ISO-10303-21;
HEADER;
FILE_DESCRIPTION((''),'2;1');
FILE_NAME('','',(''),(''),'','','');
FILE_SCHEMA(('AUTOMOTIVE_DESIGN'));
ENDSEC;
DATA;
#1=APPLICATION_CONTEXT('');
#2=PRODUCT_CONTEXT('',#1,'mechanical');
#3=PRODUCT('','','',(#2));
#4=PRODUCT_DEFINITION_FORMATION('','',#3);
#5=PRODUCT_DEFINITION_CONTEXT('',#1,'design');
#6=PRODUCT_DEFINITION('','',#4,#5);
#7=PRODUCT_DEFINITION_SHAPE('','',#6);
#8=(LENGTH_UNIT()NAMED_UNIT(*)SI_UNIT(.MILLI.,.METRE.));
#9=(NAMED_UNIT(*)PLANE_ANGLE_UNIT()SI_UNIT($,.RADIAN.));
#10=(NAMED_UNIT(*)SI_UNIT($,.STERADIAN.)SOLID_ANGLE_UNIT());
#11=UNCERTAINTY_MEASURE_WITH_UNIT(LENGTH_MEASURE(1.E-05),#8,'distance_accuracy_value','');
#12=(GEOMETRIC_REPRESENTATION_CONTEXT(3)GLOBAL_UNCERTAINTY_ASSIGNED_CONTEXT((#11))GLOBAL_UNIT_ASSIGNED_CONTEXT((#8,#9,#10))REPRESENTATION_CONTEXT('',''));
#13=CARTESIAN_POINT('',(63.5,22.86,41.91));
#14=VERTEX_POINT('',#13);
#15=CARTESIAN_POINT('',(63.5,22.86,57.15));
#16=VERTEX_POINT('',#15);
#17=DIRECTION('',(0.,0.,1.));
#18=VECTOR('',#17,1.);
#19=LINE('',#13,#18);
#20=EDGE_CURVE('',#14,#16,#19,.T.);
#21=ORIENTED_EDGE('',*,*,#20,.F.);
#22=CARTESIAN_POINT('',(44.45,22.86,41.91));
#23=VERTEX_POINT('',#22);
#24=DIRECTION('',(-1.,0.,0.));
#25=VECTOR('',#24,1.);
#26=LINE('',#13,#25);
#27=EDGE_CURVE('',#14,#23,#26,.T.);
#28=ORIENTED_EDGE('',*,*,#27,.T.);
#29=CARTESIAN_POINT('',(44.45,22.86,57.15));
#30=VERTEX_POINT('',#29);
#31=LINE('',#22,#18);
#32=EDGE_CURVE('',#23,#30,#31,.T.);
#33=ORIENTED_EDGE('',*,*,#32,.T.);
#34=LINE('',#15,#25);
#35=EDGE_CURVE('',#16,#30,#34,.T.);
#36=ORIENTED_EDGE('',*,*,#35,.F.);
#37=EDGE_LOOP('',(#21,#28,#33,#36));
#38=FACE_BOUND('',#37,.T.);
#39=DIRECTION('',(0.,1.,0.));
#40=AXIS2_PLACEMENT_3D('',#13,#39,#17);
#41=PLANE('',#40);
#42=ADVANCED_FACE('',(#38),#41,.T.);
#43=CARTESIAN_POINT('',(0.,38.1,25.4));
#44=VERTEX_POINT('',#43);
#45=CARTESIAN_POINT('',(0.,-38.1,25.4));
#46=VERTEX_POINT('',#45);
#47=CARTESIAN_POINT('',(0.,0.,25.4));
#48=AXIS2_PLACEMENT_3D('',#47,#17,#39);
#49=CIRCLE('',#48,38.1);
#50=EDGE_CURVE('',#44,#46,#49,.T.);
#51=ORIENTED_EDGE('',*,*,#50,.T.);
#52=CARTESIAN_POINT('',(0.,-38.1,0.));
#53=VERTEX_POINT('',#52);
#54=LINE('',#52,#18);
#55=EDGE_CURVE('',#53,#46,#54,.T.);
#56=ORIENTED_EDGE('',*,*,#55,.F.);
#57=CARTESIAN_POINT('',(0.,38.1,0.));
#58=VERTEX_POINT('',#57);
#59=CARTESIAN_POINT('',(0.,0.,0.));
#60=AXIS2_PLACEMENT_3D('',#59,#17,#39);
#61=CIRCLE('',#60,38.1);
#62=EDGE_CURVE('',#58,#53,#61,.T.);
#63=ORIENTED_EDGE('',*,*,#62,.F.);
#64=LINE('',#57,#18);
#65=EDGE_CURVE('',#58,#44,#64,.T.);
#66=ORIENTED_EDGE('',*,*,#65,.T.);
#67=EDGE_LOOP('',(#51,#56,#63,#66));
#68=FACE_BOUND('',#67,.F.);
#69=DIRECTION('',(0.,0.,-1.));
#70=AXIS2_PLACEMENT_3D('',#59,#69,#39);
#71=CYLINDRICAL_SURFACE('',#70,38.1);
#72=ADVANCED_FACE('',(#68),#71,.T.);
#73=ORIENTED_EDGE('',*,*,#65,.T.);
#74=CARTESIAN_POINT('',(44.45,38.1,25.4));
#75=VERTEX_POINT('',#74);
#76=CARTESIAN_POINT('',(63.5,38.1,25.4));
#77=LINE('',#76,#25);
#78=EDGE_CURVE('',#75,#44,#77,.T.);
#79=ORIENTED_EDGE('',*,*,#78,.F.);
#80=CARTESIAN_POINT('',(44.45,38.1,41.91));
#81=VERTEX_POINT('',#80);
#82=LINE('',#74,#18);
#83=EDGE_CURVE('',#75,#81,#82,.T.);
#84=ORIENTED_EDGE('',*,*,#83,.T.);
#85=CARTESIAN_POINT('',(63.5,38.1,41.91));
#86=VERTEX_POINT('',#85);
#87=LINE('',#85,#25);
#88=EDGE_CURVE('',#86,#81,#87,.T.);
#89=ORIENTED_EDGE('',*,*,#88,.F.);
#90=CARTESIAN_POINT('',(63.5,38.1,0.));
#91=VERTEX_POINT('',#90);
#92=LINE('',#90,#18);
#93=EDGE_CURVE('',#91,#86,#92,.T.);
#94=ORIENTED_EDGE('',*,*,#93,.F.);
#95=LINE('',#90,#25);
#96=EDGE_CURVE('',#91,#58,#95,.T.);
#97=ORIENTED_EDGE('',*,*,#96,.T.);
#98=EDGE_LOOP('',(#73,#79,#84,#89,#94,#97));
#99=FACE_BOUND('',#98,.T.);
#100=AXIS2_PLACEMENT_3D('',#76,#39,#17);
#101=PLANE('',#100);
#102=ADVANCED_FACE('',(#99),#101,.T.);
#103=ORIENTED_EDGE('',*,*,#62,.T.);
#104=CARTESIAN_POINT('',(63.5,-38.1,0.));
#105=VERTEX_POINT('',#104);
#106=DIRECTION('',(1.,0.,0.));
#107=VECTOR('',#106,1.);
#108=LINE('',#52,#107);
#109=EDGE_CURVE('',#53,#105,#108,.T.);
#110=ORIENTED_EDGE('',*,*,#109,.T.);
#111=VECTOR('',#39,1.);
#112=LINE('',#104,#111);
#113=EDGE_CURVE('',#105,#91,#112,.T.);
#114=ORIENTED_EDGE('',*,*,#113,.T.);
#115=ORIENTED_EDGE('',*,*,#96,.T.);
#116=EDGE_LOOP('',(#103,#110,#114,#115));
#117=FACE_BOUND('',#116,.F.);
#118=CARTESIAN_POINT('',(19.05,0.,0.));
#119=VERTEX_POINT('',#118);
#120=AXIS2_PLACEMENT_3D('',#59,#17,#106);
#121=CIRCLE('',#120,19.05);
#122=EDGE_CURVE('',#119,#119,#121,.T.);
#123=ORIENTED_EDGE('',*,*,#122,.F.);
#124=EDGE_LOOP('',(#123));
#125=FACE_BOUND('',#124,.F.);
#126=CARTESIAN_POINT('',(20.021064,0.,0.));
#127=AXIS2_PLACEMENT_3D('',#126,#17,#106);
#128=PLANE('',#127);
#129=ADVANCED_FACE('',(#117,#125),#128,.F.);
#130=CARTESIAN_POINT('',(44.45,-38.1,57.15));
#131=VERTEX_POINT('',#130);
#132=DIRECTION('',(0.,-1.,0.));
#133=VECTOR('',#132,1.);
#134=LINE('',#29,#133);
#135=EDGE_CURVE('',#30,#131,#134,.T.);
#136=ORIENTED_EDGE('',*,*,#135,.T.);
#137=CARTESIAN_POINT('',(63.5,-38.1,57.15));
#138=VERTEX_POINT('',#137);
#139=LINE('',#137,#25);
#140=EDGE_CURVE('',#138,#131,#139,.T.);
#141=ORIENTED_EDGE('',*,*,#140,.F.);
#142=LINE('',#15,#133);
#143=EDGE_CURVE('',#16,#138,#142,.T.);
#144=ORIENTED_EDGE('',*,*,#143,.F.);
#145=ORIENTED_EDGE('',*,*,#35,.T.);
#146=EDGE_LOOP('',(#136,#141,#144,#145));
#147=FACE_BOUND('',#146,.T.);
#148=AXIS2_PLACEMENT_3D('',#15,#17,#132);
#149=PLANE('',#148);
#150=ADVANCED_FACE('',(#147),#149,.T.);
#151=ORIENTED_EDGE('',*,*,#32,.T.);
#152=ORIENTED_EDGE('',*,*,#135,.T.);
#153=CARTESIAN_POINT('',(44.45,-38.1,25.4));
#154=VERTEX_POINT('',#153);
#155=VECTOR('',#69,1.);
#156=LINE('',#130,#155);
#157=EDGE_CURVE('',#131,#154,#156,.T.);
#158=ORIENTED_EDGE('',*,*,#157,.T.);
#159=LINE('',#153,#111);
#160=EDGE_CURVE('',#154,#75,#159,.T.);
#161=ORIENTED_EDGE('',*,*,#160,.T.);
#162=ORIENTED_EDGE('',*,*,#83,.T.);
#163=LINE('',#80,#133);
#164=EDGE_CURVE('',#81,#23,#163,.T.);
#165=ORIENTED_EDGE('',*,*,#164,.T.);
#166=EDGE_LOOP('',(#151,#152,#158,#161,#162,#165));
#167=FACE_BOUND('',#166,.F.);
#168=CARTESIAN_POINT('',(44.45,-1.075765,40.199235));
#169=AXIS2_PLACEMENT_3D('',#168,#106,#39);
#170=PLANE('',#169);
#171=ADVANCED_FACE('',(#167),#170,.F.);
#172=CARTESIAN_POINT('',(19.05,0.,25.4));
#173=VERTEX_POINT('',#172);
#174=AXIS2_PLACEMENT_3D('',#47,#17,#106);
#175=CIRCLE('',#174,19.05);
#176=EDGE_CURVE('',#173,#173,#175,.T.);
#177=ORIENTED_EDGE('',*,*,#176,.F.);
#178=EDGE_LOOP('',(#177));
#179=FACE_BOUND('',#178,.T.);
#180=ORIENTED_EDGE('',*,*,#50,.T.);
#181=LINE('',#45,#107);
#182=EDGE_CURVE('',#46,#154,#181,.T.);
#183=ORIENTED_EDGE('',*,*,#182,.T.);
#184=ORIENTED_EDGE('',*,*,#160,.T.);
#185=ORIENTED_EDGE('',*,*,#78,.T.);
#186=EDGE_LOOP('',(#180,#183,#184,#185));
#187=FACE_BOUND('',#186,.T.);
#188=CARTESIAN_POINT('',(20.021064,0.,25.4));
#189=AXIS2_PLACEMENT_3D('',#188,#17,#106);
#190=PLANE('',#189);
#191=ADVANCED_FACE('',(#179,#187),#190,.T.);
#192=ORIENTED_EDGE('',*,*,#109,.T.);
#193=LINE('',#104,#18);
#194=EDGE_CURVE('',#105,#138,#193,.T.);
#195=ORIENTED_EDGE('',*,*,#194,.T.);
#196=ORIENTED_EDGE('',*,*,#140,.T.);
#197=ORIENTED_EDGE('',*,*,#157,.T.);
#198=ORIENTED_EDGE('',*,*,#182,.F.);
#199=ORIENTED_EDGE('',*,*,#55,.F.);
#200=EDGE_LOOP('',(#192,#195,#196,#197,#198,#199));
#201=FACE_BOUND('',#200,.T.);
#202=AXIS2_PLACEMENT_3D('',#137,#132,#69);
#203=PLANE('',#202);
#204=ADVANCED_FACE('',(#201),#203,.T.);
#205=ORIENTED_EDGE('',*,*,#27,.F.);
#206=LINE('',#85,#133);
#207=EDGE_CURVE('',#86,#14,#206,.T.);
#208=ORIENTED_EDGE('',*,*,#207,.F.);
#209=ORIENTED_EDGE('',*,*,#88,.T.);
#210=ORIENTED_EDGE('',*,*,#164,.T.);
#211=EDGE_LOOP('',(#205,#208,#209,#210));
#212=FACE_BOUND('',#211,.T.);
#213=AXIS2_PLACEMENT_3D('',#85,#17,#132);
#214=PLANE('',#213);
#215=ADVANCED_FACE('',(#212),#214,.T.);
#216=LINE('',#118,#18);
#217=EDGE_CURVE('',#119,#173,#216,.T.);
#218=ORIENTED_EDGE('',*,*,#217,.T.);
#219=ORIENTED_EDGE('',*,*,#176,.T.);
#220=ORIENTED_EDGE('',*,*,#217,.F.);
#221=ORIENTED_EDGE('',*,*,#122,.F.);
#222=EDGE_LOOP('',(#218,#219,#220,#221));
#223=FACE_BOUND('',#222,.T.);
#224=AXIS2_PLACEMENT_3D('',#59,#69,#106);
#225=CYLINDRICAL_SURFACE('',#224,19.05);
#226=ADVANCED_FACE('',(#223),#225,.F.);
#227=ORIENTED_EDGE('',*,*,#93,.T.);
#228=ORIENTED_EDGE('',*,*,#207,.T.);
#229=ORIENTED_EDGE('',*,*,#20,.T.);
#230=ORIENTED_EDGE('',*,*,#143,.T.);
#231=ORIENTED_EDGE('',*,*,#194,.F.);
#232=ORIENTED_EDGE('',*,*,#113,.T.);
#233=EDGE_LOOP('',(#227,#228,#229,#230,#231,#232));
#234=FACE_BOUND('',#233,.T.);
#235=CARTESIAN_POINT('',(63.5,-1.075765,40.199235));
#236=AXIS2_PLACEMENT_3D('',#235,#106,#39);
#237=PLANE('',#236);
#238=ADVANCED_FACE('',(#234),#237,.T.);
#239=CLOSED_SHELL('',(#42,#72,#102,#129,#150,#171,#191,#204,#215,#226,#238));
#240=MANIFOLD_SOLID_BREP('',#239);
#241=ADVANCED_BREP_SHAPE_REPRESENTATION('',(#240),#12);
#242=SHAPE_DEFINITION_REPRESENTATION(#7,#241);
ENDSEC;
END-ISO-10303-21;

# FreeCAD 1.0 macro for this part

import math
import FreeCAD as App
import Part
import Sketcher
from FreeCAD import Vector
Q = App.Units.Quantity


def add_polygon(sketch, points):
    """Adds a closed chain of lines whose ends are joined by coincident constraints."""
    first, n = sketch.GeometryCount, len(points)
    for a, b in zip(points, points[1:] + points[:1]):
        sketch.addGeometry(Part.LineSegment(App.Vector(*a, 0), App.Vector(*b, 0)), False)
    for i in range(n):
        sketch.addConstraint(Sketcher.Constraint("Coincident", first + i, 2, first + (i + 1) % n, 1))

doc = App.newDocument("Part")
body = doc.addObject("PartDesign::Body", "Body")

# Sketch on XY plane
sketch1 = doc.addObject("Sketcher::SketchObject", "Sketch")
body.addObject(sketch1)
sketch1.AttachmentSupport = (doc.XY_Plane, [""])
sketch1.MapMode = "FlatFace"
sketch1.addGeometry([
    Part.LineSegment(Vector(64, 38, 0), Vector(0, 38, 0)),  # 0
    Part.ArcOfCircle(Part.Circle(Vector(0, 0, 0), Vector(0, 0, 1), 38), math.radians(90), math.radians(270)),  # 1
    Part.LineSegment(Vector(0, -38, 0), Vector(64, -38, 0)),  # 2
    Part.LineSegment(Vector(64, -38, 0), Vector(64, 38, 0)),  # 3
    Part.Circle(Vector(0, 0, 0), Vector(0, 0, 1), 19),  # 4
], False)
sketch1.addConstraint([
    Sketcher.Constraint("Tangent", 0, 2, 1, 1),
    Sketcher.Constraint("Tangent", 1, 2, 2, 1),
    Sketcher.Constraint("Coincident", 2, 2, 3, 1),
    Sketcher.Constraint("Coincident", 3, 2, 0, 1),
    Sketcher.Constraint("Horizontal", 0),
    Sketcher.Constraint("Horizontal", 2),
    Sketcher.Constraint("Vertical", 3),
    Sketcher.Constraint("Coincident", 1, 3, -1, 1),
    Sketcher.Constraint("Coincident", 4, 3, -1, 1),
    Sketcher.Constraint("Diameter", 4, Q("1.5 in")),
    Sketcher.Constraint("Radius", 1, Q("1.5 in")),
    Sketcher.Constraint("DistanceX", 0, 2, 0, 1, Q("2.5 in")),
])
pad1 = doc.addObject("PartDesign::Pad", "Pad")
body.addObject(pad1)
pad1.Profile = sketch1
pad1.Length = Q("1 in")

# Sketch on YZ plane
sketch2 = doc.addObject("Sketcher::SketchObject", "Sketch001")
body.addObject(sketch2)
sketch2.AttachmentSupport = (doc.YZ_Plane, [""])
sketch2.MapMode = "FlatFace"
sketch2.AttachmentOffset = App.Placement(Vector(0, 0, 2.5 * 25.4), App.Rotation())
add_polygon(sketch2, [(-38, 57), (-38, 25), (38, 25), (38, 42), (23, 42), (23, 57)])  # lines 0-5
sketch2.addConstraint([
    Sketcher.Constraint("Vertical", 0),
    Sketcher.Constraint("Horizontal", 1),
    Sketcher.Constraint("Vertical", 2),
    Sketcher.Constraint("Horizontal", 3),
    Sketcher.Constraint("Vertical", 4),
    Sketcher.Constraint("Horizontal", 5),
    Sketcher.Constraint("Equal", 3, 4),
    Sketcher.Constraint("DistanceX", 1, 1, 1, 2, Q("3 in")),
    Sketcher.Constraint("DistanceX", 3, 2, 3, 1, Q("0.6 in")),
    Sketcher.Constraint("DistanceY", -1, 1, 0, 2, Q("1 in")),
    Sketcher.Constraint("DistanceY", 0, 2, 0, 1, Q("1.25 in")),
    Sketcher.Constraint("DistanceX", 0, 2, -1, 1, Q("1.5 in")),
])
pad2 = doc.addObject("PartDesign::Pad", "Pad001")
body.addObject(pad2)
pad2.Profile = sketch2
pad2.Length = Q("0.75 in")
pad2.Reversed = True

doc.recompute()
